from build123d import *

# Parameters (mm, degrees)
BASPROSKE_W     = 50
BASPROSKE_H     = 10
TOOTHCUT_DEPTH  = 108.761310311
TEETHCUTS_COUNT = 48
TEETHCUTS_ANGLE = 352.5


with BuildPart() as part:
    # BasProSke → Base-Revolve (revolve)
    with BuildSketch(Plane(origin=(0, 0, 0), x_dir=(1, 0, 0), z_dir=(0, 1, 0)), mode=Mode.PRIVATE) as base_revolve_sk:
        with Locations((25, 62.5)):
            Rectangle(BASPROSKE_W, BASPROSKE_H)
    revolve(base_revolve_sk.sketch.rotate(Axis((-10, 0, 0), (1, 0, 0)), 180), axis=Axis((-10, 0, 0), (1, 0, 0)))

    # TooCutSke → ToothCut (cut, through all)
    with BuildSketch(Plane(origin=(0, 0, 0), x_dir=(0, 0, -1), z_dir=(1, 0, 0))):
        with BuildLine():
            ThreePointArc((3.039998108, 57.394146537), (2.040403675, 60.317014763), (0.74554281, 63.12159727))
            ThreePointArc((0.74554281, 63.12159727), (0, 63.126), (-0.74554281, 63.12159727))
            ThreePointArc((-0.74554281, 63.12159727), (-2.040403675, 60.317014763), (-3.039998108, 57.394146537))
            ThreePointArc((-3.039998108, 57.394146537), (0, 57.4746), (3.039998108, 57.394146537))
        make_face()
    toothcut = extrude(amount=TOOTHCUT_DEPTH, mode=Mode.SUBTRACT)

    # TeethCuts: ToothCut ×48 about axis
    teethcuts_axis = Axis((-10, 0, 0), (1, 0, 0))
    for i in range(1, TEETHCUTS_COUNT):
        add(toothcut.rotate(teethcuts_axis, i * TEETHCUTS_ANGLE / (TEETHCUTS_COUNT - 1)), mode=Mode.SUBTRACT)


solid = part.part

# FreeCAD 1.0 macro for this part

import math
import FreeCAD as App
import Part
import Sketcher

doc = App.newDocument("Part")
params = doc.addObject("Spreadsheet::Sheet", "Params")
for row, (alias, value) in enumerate([
    ("sketch1_width", "50 mm"),
    ("sketch1_height", "10 mm"),
    ("revolution_angle", "360 deg"),
    ("sketch2_radius", "30 mm"),
], start=1):
    params.set(f"A{row}", alias)
    params.set(f"B{row}", "=" + value)
    params.setAlias(f"B{row}", alias)

body = doc.addObject("PartDesign::Body", "Body")

sketch1 = body.newObject("Sketcher::SketchObject", "Sketch")
sketch1.AttachmentSupport = (doc.getObject("XZ_Plane"), [""])
sketch1.MapMode = "FlatFace"
sketch1.addGeometry([
    Part.LineSegment(App.Vector(0, -68, 0), App.Vector(0, -58, 0)),
    Part.LineSegment(App.Vector(0, -58, 0), App.Vector(50, -58, 0)),
    Part.LineSegment(App.Vector(50, -58, 0), App.Vector(50, -68, 0)),
    Part.LineSegment(App.Vector(50, -68, 0), App.Vector(0, -68, 0)),
], False)
sketch1.addConstraint([
    Sketcher.Constraint("Coincident", 0, 2, 1, 1),
    Sketcher.Constraint("Coincident", 1, 2, 2, 1),
    Sketcher.Constraint("Coincident", 2, 2, 3, 1),
    Sketcher.Constraint("Coincident", 3, 2, 0, 1),
    Sketcher.Constraint("Vertical", 0),
    Sketcher.Constraint("Horizontal", 1),
    Sketcher.Constraint("Vertical", 2),
    Sketcher.Constraint("Horizontal", 3),
    Sketcher.Constraint("PointOnObject", 0, 2, -2),
    Sketcher.Constraint("DistanceX", 1, 1, 1, 2, 50.0),
    Sketcher.Constraint("DistanceY", 0, 1, 0, 2, 10.0),
    Sketcher.Constraint("DistanceY", 0, 2, -1, 1, 57.5),
])
sketch1.setExpression("Constraints[9]", "Params.sketch1_width")
sketch1.setExpression("Constraints[10]", "Params.sketch1_height")
revolution = body.newObject("PartDesign::Revolution", "Revolution")
revolution.Profile = sketch1
revolution.ReferenceAxis = (sketch1, ["H_Axis"])
revolution.setExpression("Angle", "Params.revolution_angle")

sketch2 = body.newObject("Sketcher::SketchObject", "Sketch001")
sketch2.AttachmentSupport = (doc.getObject("YZ_Plane"), [""])
sketch2.MapMode = "FlatFace"
sketch2.addGeometry([
    Part.ArcOfCircle(Part.Circle(App.Vector(49.2, 25.8, 0), App.Vector(0, 0, 1), 30), math.radians(-74.07), math.radians(-62.27)),
    Part.ArcOfCircle(Part.Circle(App.Vector(0, 0, 0), App.Vector(0, 0, 1), 63.1), math.radians(-0.68), math.radians(0.68)),
    Part.ArcOfCircle(Part.Circle(App.Vector(49.2, -25.8, 0), App.Vector(0, 0, 1), 30), math.radians(62.27), math.radians(74.07)),
    Part.ArcOfCircle(Part.Circle(App.Vector(0, 0, 0), App.Vector(0, 0, 1), 57.5), math.radians(-3.03), math.radians(3.03)),
], False)
sketch2.addConstraint([
    Sketcher.Constraint("Coincident", 0, 2, 1, 1),
    Sketcher.Constraint("Coincident", 1, 2, 2, 1),
    Sketcher.Constraint("Coincident", 2, 2, 3, 2),
    Sketcher.Constraint("Coincident", 3, 1, 0, 1),
    Sketcher.Constraint("Coincident", 1, 3, -1, 1),
    Sketcher.Constraint("Coincident", 3, 3, -1, 1),
    Sketcher.Constraint("Equal", 0, 2),
    Sketcher.Constraint("Symmetric", 0, 3, 2, 3, -1),
    Sketcher.Constraint("Radius", 0, 30.0),
    Sketcher.Constraint("Radius", 1, 63.126),
    Sketcher.Constraint("Radius", 3, 57.4746),
    Sketcher.Constraint("DistanceY", -1, 1, 2, 2, 3.039998),
    Sketcher.Constraint("DistanceX", -1, 1, 0, 3, 49.16073),
])
sketch2.setExpression("Constraints[8]", "Params.sketch2_radius")
pocket1 = body.newObject("PartDesign::Pocket", "Pocket")
pocket1.Profile = sketch2
pocket1.Type = "ThroughAll"
pocket1.Reversed = True
doc.recompute()

polarpattern = body.newObject("PartDesign::PolarPattern", "PolarPattern")
polarpattern.Originals = [pocket1]
polarpattern.Axis = (doc.getObject("X_Axis"), [""])
polarpattern.Angle = 360
polarpattern.Occurrences = 48
body.Tip = polarpattern

doc.recompute()
